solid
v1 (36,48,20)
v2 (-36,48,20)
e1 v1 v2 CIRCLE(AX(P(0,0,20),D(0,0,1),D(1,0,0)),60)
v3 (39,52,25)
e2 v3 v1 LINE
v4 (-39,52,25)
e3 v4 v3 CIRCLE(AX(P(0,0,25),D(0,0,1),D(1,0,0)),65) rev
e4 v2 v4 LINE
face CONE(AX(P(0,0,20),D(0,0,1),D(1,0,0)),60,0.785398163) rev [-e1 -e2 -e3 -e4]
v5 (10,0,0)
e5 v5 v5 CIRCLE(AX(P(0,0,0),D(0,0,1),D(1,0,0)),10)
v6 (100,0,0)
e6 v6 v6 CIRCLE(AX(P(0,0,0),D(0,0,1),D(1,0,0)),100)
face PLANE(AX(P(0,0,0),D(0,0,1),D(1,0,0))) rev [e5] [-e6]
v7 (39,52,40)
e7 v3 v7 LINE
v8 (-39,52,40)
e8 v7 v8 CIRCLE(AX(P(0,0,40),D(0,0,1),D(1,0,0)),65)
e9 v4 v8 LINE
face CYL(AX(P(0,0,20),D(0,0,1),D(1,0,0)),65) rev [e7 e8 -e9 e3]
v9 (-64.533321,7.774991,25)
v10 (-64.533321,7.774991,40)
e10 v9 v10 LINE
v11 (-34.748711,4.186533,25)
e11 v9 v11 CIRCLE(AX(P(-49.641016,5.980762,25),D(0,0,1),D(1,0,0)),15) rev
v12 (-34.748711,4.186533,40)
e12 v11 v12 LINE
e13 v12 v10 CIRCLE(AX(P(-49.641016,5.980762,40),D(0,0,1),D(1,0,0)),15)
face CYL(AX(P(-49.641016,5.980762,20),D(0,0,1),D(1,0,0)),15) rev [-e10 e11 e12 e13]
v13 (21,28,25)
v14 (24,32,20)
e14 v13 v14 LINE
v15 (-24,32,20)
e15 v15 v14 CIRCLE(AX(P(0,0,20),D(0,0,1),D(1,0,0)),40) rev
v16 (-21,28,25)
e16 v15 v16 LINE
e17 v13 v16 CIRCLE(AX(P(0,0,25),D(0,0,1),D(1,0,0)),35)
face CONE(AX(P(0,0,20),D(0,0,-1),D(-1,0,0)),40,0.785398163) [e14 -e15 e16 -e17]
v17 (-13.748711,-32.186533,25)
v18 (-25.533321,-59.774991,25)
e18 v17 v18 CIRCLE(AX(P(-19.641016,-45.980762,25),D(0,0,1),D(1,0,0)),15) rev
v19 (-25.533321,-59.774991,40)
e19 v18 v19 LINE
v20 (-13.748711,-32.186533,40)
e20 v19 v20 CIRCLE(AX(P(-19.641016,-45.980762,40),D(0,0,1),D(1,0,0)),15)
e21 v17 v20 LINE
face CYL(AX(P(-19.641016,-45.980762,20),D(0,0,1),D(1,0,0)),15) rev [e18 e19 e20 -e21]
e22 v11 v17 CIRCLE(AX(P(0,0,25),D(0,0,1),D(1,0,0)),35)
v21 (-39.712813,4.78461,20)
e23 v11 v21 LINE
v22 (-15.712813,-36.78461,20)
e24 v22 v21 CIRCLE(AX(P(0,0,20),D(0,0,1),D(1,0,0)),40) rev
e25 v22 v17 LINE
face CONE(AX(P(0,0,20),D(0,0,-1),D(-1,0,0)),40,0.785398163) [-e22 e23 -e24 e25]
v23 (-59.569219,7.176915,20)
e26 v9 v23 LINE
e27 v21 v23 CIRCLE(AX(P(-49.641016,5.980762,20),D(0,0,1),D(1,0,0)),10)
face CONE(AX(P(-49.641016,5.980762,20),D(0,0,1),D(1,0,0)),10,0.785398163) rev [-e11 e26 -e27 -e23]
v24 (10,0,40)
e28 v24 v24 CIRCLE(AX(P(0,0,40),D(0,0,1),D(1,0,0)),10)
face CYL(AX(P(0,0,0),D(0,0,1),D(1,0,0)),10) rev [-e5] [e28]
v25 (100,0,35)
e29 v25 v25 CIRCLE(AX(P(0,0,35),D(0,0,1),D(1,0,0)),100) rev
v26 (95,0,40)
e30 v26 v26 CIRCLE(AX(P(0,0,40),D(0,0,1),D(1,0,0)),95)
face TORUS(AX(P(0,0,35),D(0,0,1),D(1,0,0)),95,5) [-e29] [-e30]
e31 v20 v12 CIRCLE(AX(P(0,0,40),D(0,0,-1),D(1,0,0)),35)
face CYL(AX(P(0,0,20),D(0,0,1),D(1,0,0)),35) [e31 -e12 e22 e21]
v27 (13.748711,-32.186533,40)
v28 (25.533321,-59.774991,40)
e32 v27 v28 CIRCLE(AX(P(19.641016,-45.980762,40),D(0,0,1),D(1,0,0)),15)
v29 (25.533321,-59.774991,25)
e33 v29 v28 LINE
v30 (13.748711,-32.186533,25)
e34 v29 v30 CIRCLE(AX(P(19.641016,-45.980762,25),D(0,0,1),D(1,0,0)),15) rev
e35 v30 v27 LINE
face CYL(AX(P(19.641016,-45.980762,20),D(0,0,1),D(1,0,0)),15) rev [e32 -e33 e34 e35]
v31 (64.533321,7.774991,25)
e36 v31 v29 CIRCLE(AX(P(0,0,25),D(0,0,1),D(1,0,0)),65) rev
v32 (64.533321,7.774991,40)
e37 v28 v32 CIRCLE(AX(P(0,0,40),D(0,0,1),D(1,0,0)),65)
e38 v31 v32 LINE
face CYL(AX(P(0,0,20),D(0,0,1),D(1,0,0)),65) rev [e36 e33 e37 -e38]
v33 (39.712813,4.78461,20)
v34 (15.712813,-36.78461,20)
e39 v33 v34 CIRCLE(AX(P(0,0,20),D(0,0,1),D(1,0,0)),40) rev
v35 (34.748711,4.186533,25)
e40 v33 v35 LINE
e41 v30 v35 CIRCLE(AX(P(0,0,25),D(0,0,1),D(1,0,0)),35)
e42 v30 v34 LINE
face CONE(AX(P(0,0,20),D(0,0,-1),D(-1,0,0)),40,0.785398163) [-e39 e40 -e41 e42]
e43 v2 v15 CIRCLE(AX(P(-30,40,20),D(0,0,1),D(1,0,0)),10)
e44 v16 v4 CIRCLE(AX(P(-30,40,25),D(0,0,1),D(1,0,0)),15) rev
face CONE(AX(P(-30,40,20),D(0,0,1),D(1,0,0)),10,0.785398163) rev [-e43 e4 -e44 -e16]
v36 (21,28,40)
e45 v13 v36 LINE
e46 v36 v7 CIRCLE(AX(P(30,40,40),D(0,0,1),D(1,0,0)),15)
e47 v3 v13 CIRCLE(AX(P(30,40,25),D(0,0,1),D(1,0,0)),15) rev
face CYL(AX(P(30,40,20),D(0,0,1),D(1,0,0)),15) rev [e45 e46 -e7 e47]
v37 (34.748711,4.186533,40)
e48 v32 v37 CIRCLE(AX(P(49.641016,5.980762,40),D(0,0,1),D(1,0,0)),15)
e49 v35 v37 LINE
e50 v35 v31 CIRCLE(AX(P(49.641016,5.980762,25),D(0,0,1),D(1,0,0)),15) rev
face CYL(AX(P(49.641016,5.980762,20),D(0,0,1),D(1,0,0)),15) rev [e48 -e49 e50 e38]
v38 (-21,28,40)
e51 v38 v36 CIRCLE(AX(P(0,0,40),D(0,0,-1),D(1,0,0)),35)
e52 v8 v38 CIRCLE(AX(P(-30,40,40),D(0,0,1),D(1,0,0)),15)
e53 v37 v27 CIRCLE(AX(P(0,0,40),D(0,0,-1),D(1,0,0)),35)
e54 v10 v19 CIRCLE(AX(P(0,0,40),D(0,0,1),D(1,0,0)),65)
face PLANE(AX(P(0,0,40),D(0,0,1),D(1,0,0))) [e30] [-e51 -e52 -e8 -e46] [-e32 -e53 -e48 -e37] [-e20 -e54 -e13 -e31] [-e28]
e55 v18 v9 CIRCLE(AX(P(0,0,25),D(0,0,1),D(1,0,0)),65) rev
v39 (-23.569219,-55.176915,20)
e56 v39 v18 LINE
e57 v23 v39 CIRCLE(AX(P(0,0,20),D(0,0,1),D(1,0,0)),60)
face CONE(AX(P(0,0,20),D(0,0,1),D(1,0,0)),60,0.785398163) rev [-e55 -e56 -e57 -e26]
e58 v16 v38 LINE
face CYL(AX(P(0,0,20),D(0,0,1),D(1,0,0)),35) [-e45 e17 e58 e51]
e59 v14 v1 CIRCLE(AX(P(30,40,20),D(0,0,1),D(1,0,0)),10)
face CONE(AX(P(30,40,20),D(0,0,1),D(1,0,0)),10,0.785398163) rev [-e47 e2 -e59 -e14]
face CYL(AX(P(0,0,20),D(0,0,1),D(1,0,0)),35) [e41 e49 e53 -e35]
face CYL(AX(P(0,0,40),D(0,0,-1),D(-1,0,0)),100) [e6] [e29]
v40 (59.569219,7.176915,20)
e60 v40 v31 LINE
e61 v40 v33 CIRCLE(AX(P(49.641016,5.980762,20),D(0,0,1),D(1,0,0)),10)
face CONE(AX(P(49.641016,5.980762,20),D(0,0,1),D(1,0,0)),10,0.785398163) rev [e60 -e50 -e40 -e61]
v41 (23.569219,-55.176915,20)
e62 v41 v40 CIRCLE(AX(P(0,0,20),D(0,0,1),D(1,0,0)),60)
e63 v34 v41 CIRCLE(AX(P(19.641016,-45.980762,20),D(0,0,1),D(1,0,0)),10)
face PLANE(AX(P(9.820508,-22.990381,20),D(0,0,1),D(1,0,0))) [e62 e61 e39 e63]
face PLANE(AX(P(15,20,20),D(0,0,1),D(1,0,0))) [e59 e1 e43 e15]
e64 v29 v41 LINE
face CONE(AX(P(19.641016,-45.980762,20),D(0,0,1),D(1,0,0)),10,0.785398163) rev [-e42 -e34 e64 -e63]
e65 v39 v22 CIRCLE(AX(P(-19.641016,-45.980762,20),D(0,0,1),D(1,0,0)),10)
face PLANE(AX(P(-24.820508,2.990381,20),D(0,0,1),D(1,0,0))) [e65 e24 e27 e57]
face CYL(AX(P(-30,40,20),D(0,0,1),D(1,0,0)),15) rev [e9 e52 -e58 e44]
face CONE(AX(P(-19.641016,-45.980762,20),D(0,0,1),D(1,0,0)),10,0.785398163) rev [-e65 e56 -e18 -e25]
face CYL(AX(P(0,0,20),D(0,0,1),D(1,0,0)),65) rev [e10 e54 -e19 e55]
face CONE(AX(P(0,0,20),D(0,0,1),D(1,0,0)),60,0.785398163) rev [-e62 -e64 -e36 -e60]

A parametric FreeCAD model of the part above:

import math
import FreeCAD as App
import Part
import Sketcher
from FreeCAD import Vector


def edges_at(feature, points):
    """Names of the edges that pass closest to the given points."""
    edges = feature.Shape.Edges
    near = lambda p: min(range(len(edges)), key=lambda i: edges[i].distToShape(Part.Vertex(*p))[0])
    return sorted({f"Edge{near(p) + 1}" for p in points})

doc = App.newDocument("Part")
params = doc.addObject("Spreadsheet::Sheet", "Params")
for row, (alias, value) in enumerate([
    ("sketch1_diameter", "200 mm"),
    ("pad1_length", "40 mm"),
    ("sketch2_radius", "65 mm"),
    ("sketch2_radius2", "15 mm"),
    ("pocket1_length", "20 mm"),
    ("fillet_radius", "5 mm"),
    ("chamfer_size", "5 mm"),
    ("sketch3_diameter", "20 mm"),
], start=1):
    params.set(f"A{row}", alias)
    params.set(f"B{row}", "=" + value)
    params.setAlias(f"B{row}", alias)

body = doc.addObject("PartDesign::Body", "Body")

sketch1 = body.newObject("Sketcher::SketchObject", "Sketch")
sketch1.AttachmentSupport = (doc.getObject("XY_Plane"), [""])
sketch1.MapMode = "FlatFace"
sketch1.addGeometry(Part.Circle(Vector(0, 0, 0), Vector(0, 0, 1), 100), False)
sketch1.addConstraint(Sketcher.Constraint("Coincident", 0, 3, -1, 1))
sketch1.addConstraint(Sketcher.Constraint("Diameter", 0, 200.0))
sketch1.setExpression("Constraints[1]", "Params.sketch1_diameter")
pad1 = body.newObject("PartDesign::Pad", "Pad")
pad1.Profile = sketch1
pad1.setExpression("Length", "Params.pad1_length")

sketch2 = body.newObject("Sketcher::SketchObject", "Sketch001")
sketch2.AttachmentSupport = (doc.getObject("XY_Plane"), [""])
sketch2.MapMode = "FlatFace"
sketch2.AttachmentOffset = App.Placement(Vector(0, 0, 40), App.Rotation())
sketch2.addGeometry(Part.ArcOfCircle(Part.Circle(Vector(0, 0, 0), Vector(0, 0, 1), 65), math.radians(53.130102), math.radians(126.869898)), False)
sketch2.addGeometry(Part.ArcOfCircle(Part.Circle(Vector(-30, 40, 0), Vector(0, 0, 1), 15), math.radians(126.869898), math.radians(306.869898)), False)
sketch2.addGeometry(Part.ArcOfCircle(Part.Circle(Vector(0, 0, 0), Vector(0, 0, 1), 35), math.radians(53.130102), math.radians(126.869898)), False)
sketch2.addGeometry(Part.ArcOfCircle(Part.Circle(Vector(30, 40, 0), Vector(0, 0, 1), 15), math.radians(-126.869898), math.radians(53.130102)), False)
sketch2.addGeometry(Part.ArcOfCircle(Part.Circle(Vector(0, 0, 0), Vector(0, 0, 1), 65), math.radians(-66.869898), math.radians(6.869898)), False)
sketch2.addGeometry(Part.ArcOfCircle(Part.Circle(Vector(49.641016, 5.980762, 0), Vector(0, 0, 1), 15), math.radians(6.869898), math.radians(186.869898)), False)
sketch2.addGeometry(Part.ArcOfCircle(Part.Circle(Vector(0, 0, 0), Vector(0, 0, 1), 35), math.radians(-66.869898), math.radians(6.869898)), False)
sketch2.addGeometry(Part.ArcOfCircle(Part.Circle(Vector(19.641016, -45.980762, 0), Vector(0, 0, 1), 15), math.radians(113.130102), math.radians(293.130102)), False)
sketch2.addGeometry(Part.ArcOfCircle(Part.Circle(Vector(0, 0, 0), Vector(0, 0, 1), 65), math.radians(173.130102), math.radians(246.869898)), False)
sketch2.addGeometry(Part.ArcOfCircle(Part.Circle(Vector(-19.641016, -45.980762, 0), Vector(0, 0, 1), 15), math.radians(-113.130102), math.radians(66.869898)), False)
sketch2.addGeometry(Part.ArcOfCircle(Part.Circle(Vector(0, 0, 0), Vector(0, 0, 1), 35), math.radians(173.130102), math.radians(246.869898)), False)
sketch2.addGeometry(Part.ArcOfCircle(Part.Circle(Vector(-49.641016, 5.980762, 0), Vector(0, 0, 1), 15), math.radians(-6.869898), math.radians(173.130102)), False)
sketch2.addConstraint(Sketcher.Constraint("Tangent", 0, 2, 1, 1))
sketch2.addConstraint(Sketcher.Constraint("Tangent", 1, 2, 2, 2))
sketch2.addConstraint(Sketcher.Constraint("Tangent", 2, 1, 3, 1))
sketch2.addConstraint(Sketcher.Constraint("Tangent", 3, 2, 0, 1))
sketch2.addConstraint(Sketcher.Constraint("Tangent", 4, 2, 5, 1))
sketch2.addConstraint(Sketcher.Constraint("Tangent", 5, 2, 6, 2))
sketch2.addConstraint(Sketcher.Constraint("Tangent", 6, 1, 7, 1))
sketch2.addConstraint(Sketcher.Constraint("Tangent", 7, 2, 4, 1))
sketch2.addConstraint(Sketcher.Constraint("Tangent", 8, 2, 9, 1))
sketch2.addConstraint(Sketcher.Constraint("Tangent", 9, 2, 10, 2))
sketch2.addConstraint(Sketcher.Constraint("Tangent", 10, 1, 11, 1))
sketch2.addConstraint(Sketcher.Constraint("Tangent", 11, 2, 8, 1))
sketch2.addConstraint(Sketcher.Constraint("Coincident", 0, 3, -1, 1))
sketch2.addConstraint(Sketcher.Constraint("Coincident", 2, 3, -1, 1))
sketch2.addConstraint(Sketcher.Constraint("Coincident", 4, 3, -1, 1))
sketch2.addConstraint(Sketcher.Constraint("Coincident", 6, 3, -1, 1))
sketch2.addConstraint(Sketcher.Constraint("Coincident", 8, 3, -1, 1))
sketch2.addConstraint(Sketcher.Constraint("Coincident", 10, 3, -1, 1))
sketch2.addConstraint(Sketcher.Constraint("Equal", 0, 4))
sketch2.addConstraint(Sketcher.Constraint("Equal", 3, 5))
sketch2.addConstraint(Sketcher.Constraint("Equal", 4, 8))
sketch2.addConstraint(Sketcher.Constraint("Equal", 7, 9))
sketch2.addConstraint(Sketcher.Constraint("Horizontal", 1, 3, 3, 3))
sketch2.addConstraint(Sketcher.Constraint("Horizontal", 7, 3, 9, 3))
sketch2.addConstraint(Sketcher.Constraint("Horizontal", 5, 3, 11, 3))
sketch2.addConstraint(Sketcher.Constraint("Radius", 0, 65.0))
sketch2.addConstraint(Sketcher.Constraint("Radius", 1, 15.0))
sketch2.addConstraint(Sketcher.Constraint("DistanceX", 1, 3, -1, 1, 30.0))
sketch2.addConstraint(Sketcher.Constraint("DistanceX", 7, 3, 5, 3, 30.0))
sketch2.addConstraint(Sketcher.Constraint("DistanceX", -1, 1, 4, 2, 64.533321))
sketch2.setExpression("Constraints[25]", "Params.sketch2_radius")
sketch2.setExpression("Constraints[26]", "Params.sketch2_radius2")
pocket1 = body.newObject("PartDesign::Pocket", "Pocket")
pocket1.Profile = sketch2
pocket1.setExpression("Length", "Params.pocket1_length")
doc.recompute()

fillet = body.newObject("PartDesign::Fillet", "Fillet")
fillet.Base = (pocket1, edges_at(pocket1, [(-100, 0, 40)]))
fillet.setExpression("Radius", "Params.fillet_radius")
doc.recompute()

chamfer = body.newObject("PartDesign::Chamfer", "Chamfer")
chamfer.Base = (fillet, edges_at(fillet, [
    (42, 31, 20),
    (0, 35, 20),
    (-42, 31, 20),
    (0, 65, 20),
    (5.847, -51.873, 20),
    (30.311, -17.5, 20),
    (47.847, 20.873, 20),
    (56.292, -32.5, 20),
    (-47.847, 20.873, 20),
    (-30.311, -17.5, 20),
    (-5.847, -51.873, 20),
    (-56.292, -32.5, 20),
]))
chamfer.setExpression("Size", "Params.chamfer_size")

sketch3 = body.newObject("Sketcher::SketchObject", "Sketch002")
sketch3.AttachmentSupport = (doc.getObject("XY_Plane"), [""])
sketch3.MapMode = "FlatFace"
sketch3.AttachmentOffset = App.Placement(Vector(0, 0, 40), App.Rotation())
sketch3.addGeometry(Part.Circle(Vector(0, 0, 0), Vector(0, 0, 1), 10), False)
sketch3.addConstraint(Sketcher.Constraint("Coincident", 0, 3, -1, 1))
sketch3.addConstraint(Sketcher.Constraint("Diameter", 0, 20.0))
sketch3.setExpression("Constraints[1]", "Params.sketch3_diameter")
pocket2 = body.newObject("PartDesign::Pocket", "Pocket001")
pocket2.Profile = sketch3
pocket2.Type = "ThroughAll"

doc.recompute()
